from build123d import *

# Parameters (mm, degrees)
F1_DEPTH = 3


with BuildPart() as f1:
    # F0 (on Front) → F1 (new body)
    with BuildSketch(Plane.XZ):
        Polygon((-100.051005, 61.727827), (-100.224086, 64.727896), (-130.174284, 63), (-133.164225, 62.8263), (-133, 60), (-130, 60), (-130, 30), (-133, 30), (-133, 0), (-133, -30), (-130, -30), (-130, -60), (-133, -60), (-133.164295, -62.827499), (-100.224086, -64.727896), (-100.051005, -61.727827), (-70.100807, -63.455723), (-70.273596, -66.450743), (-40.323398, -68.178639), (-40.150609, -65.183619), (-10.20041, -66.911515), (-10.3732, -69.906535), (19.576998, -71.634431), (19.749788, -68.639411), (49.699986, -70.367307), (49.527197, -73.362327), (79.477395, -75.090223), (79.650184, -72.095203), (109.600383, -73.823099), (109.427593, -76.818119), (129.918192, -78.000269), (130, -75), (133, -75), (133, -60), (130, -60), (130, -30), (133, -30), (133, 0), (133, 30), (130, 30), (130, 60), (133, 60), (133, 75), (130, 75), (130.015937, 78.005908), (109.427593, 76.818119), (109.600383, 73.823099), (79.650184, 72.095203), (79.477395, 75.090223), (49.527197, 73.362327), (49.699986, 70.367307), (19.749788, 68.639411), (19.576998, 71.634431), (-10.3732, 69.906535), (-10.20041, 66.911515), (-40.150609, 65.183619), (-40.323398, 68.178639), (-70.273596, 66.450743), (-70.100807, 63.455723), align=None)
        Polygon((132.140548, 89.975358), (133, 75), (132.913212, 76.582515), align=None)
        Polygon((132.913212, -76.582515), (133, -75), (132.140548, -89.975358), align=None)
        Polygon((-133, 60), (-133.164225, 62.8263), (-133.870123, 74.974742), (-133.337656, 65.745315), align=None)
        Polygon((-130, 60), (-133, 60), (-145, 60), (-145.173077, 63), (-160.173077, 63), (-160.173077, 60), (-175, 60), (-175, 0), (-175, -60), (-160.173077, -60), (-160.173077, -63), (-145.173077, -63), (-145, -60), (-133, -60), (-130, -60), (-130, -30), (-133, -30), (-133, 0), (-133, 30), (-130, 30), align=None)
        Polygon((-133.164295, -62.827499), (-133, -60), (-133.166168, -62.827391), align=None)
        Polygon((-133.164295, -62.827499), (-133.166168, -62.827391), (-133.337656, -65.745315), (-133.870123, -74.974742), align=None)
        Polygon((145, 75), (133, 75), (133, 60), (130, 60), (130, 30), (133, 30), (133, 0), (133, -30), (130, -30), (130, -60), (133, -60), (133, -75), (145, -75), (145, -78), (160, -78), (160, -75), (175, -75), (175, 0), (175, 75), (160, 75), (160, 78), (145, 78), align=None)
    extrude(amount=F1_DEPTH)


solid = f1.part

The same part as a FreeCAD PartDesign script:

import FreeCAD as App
import Part
import Sketcher

V = App.Vector


def add_polygon(sketch, points):
    """Adds a closed chain of lines whose ends are joined by coincident constraints."""
    first, n = sketch.GeometryCount, len(points)
    for a, b in zip(points, points[1:] + points[:1]):
        sketch.addGeometry(Part.LineSegment(App.Vector(*a, 0), App.Vector(*b, 0)), False)
    for i in range(n):
        sketch.addConstraint(Sketcher.Constraint("Coincident", first + i, 2, first + (i + 1) % n, 1))

doc = App.newDocument("Part")
params = doc.addObject("Spreadsheet::Sheet", "Params")
for row, (alias, value) in enumerate([
    ("sketch1_width", "12 mm"),
    ("sketch1_width2", "15 mm"),
    ("sketch1_width3", "3 mm"),
    ("sketch1_height", "120 mm"),
    ("sketch1_height2", "150 mm"),
    ("pad1_length", "3 mm"),
], start=1):
    params.set(f"A{row}", alias)
    params.set(f"B{row}", "=" + value)
    params.setAlias(f"B{row}", alias)

body = doc.addObject("PartDesign::Body", "Body")
body.AllowCompound = True

# Sketch on XZ plane
sketch1 = body.newObject("Sketcher::SketchObject", "Sketch")
sketch1.AttachmentSupport = (doc.getObject("XZ_Plane"), [""])
sketch1.MapMode = "FlatFace"
add_polygon(sketch1, [(-100.051005, 61.727827), (-100.224086, 64.727896), (-130.174284, 63), (-133.164225, 62.8263), (-133.870123, 74.974742), (-133.337656, 65.745315), (-133, 60), (-145, 60), (-145.173077, 63), (-160.173077, 63), (-160.173077, 60), (-175, 60), (-175, -60), (-160.173077, -60), (-160.173077, -63), (-145.173077, -63), (-145, -60), (-133, -60), (-133.166168, -62.827391), (-133.337656, -65.745315), (-133.870123, -74.974742), (-133.164295, -62.827499), (-100.224086, -64.727896), (-100.051005, -61.727827), (-70.100807, -63.455723), (-70.273596, -66.450743), (-40.323398, -68.178639), (-40.150609, -65.183619), (-10.20041, -66.911515), (-10.3732, -69.906535), (19.576998, -71.634431), (19.749788, -68.639411), (49.699986, -70.367307), (49.527197, -73.362327), (79.477395, -75.090223), (79.650184, -72.095203), (109.600383, -73.823099), (109.427593, -76.818119), (129.918192, -78.000269), (130, -75), (133, -75), (145, -75), (145, -78), (160, -78), (160, -75), (175, -75), (175, 75), (160, 75), (160, 78), (145, 78), (145, 75), (133, 75), (130, 75), (130.015937, 78.005908), (109.427593, 76.818119), (109.600383, 73.823099), (79.650184, 72.095203), (79.477395, 75.090223), (49.527197, 73.362327), (49.699986, 70.367307), (19.749788, 68.639411), (19.576998, 71.634431), (-10.3732, 69.906535), (-10.20041, 66.911515), (-40.150609, 65.183619), (-40.323398, 68.178639), (-70.273596, 66.450743), (-70.100807, 63.455723)])  # lines 0-67
add_polygon(sketch1, [(132.140548, 89.975358), (133, 75), (132.913212, 76.582515)])  # lines 68-70
add_polygon(sketch1, [(132.913212, -76.582515), (133, -75), (132.140548, -89.975358)])  # lines 71-73
sketch1.addConstraint(Sketcher.Constraint("Horizontal", 6))
sketch1.addConstraint(Sketcher.Constraint("Horizontal", 8))
sketch1.addConstraint(Sketcher.Constraint("Vertical", 9))
sketch1.addConstraint(Sketcher.Constraint("Horizontal", 10))
sketch1.addConstraint(Sketcher.Constraint("Vertical", 11))
sketch1.addConstraint(Sketcher.Constraint("Horizontal", 12))
sketch1.addConstraint(Sketcher.Constraint("Vertical", 13))
sketch1.addConstraint(Sketcher.Constraint("Horizontal", 14))
sketch1.addConstraint(Sketcher.Constraint("Horizontal", 16))
sketch1.addConstraint(Sketcher.Constraint("Horizontal", 39))
sketch1.addConstraint(Sketcher.Constraint("Horizontal", 40))
sketch1.addConstraint(Sketcher.Constraint("Vertical", 41))
sketch1.addConstraint(Sketcher.Constraint("Horizontal", 42))
sketch1.addConstraint(Sketcher.Constraint("Vertical", 43))
sketch1.addConstraint(Sketcher.Constraint("Horizontal", 44))
sketch1.addConstraint(Sketcher.Constraint("Vertical", 45))
sketch1.addConstraint(Sketcher.Constraint("Horizontal", 46))
sketch1.addConstraint(Sketcher.Constraint("Vertical", 47))
sketch1.addConstraint(Sketcher.Constraint("Horizontal", 48))
sketch1.addConstraint(Sketcher.Constraint("Vertical", 49))
sketch1.addConstraint(Sketcher.Constraint("Horizontal", 50))
sketch1.addConstraint(Sketcher.Constraint("Horizontal", 51))
sketch1.addConstraint(Sketcher.Constraint("Coincident", 68, 2, 50, 2))
sketch1.addConstraint(Sketcher.Constraint("Coincident", 71, 2, 39, 2))
sketch1.addConstraint(Sketcher.Constraint("Symmetric", 9, 2, 12, 2, -1))
sketch1.addConstraint(Sketcher.Constraint("Symmetric", 7, 2, 14, 2, -1))
sketch1.addConstraint(Sketcher.Constraint("Symmetric", 6, 2, 15, 2, -1))
sketch1.addConstraint(Sketcher.Constraint("Symmetric", 4, 2, 18, 2, -1))
sketch1.addConstraint(Sketcher.Constraint("Symmetric", 3, 2, 19, 2, -1))
sketch1.addConstraint(Sketcher.Constraint("Symmetric", 0, 2, 21, 2, -1))
sketch1.addConstraint(Sketcher.Constraint("Symmetric", 43, 2, 46, 2, -1))
sketch1.addConstraint(Sketcher.Constraint("Symmetric", 41, 2, 48, 2, -1))
sketch1.addConstraint(Sketcher.Constraint("Symmetric", 39, 2, 50, 2, -1))
sketch1.addConstraint(Sketcher.Constraint("Symmetric", 36, 2, 53, 2, -1))
sketch1.addConstraint(Sketcher.Constraint("Symmetric", 35, 2, 54, 2, -1))
sketch1.addConstraint(Sketcher.Constraint("Symmetric", 34, 2, 55, 2, -1))
sketch1.addConstraint(Sketcher.Constraint("Symmetric", 33, 2, 56, 2, -1))
sketch1.addConstraint(Sketcher.Constraint("Symmetric", 32, 2, 57, 2, -1))
sketch1.addConstraint(Sketcher.Constraint("Symmetric", 31, 2, 58, 2, -1))
sketch1.addConstraint(Sketcher.Constraint("Symmetric", 30, 2, 59, 2, -1))
sketch1.addConstraint(Sketcher.Constraint("Symmetric", 29, 2, 60, 2, -1))
sketch1.addConstraint(Sketcher.Constraint("Symmetric", 28, 2, 61, 2, -1))
sketch1.addConstraint(Sketcher.Constraint("Symmetric", 27, 2, 62, 2, -1))
sketch1.addConstraint(Sketcher.Constraint("Symmetric", 26, 2, 63, 2, -1))
sketch1.addConstraint(Sketcher.Constraint("Symmetric", 25, 2, 64, 2, -1))
sketch1.addConstraint(Sketcher.Constraint("Symmetric", 24, 2, 65, 2, -1))
sketch1.addConstraint(Sketcher.Constraint("Symmetric", 23, 2, 66, 2, -1))
sketch1.addConstraint(Sketcher.Constraint("Symmetric", 22, 2, 67, 2, -1))
sketch1.addConstraint(Sketcher.Constraint("Symmetric", 70, 2, 72, 2, -1))
sketch1.addConstraint(Sketcher.Constraint("Symmetric", 69, 2, 73, 2, -1))
sketch1.addConstraint(Sketcher.Constraint("Perpendicular", 0, 1))
sketch1.addConstraint(Sketcher.Constraint("Perpendicular", 1, 4))
sketch1.addConstraint(Sketcher.Constraint("Parallel", 4, 7))
sketch1.addConstraint(Sketcher.Constraint("Parallel", 17, 18))
sketch1.addConstraint(Sketcher.Constraint("Perpendicular", 19, 21))
sketch1.addConstraint(Sketcher.Constraint("Perpendicular", 22, 23))
sketch1.addConstraint(Sketcher.Constraint("Perpendicular", 23, 24))
sketch1.addConstraint(Sketcher.Constraint("Perpendicular", 24, 25))
sketch1.addConstraint(Sketcher.Constraint("Perpendicular", 25, 26))
sketch1.addConstraint(Sketcher.Constraint("Perpendicular", 26, 27))
sketch1.addConstraint(Sketcher.Constraint("Perpendicular", 27, 28))
sketch1.addConstraint(Sketcher.Constraint("Perpendicular", 28, 29))
sketch1.addConstraint(Sketcher.Constraint("Perpendicular", 29, 30))
sketch1.addConstraint(Sketcher.Constraint("Perpendicular", 30, 31))
sketch1.addConstraint(Sketcher.Constraint("Perpendicular", 31, 32))
sketch1.addConstraint(Sketcher.Constraint("Perpendicular", 32, 33))
sketch1.addConstraint(Sketcher.Constraint("Perpendicular", 33, 34))
sketch1.addConstraint(Sketcher.Constraint("Perpendicular", 34, 35))
sketch1.addConstraint(Sketcher.Constraint("Perpendicular", 35, 36))
sketch1.addConstraint(Sketcher.Constraint("Perpendicular", 36, 37))
sketch1.addConstraint(Sketcher.Constraint("Perpendicular", 7, 53))
sketch1.addConstraint(Sketcher.Constraint("Perpendicular", 67, 70))
sketch1.addConstraint(Sketcher.Constraint("Horizontal", 1, 2, 7, 2))
sketch1.addConstraint(Sketcher.Constraint("Horizontal", 6, 2, 9, 2))
sketch1.addConstraint(Sketcher.Constraint("Horizontal", 40, 2, 43, 2))
sketch1.addConstraint(Sketcher.Constraint("Vertical", 5, 2, 16, 2))
sketch1.addConstraint(Sketcher.Constraint("Vertical", 38, 2, 51, 2))
sketch1.addConstraint(Sketcher.Constraint("Equal", 16, 40))
sketch1.addConstraint(Sketcher.Constraint("Equal", 14, 42))
sketch1.addConstraint(Sketcher.Constraint("Equal", 42, 44))
sketch1.addConstraint(Sketcher.Constraint("Equal", 51, 9))
sketch1.addConstraint(Sketcher.Constraint("Equal", 13, 41))
sketch1.addConstraint(Sketcher.Constraint("Equal", 1, 23))
sketch1.addConstraint(Sketcher.Constraint("Equal", 23, 25))
sketch1.addConstraint(Sketcher.Constraint("Equal", 24, 26))
sketch1.addConstraint(Sketcher.Constraint("Equal", 25, 27))
sketch1.addConstraint(Sketcher.Constraint("Equal", 26, 28))
sketch1.addConstraint(Sketcher.Constraint("Equal", 27, 29))
sketch1.addConstraint(Sketcher.Constraint("Equal", 28, 30))
sketch1.addConstraint(Sketcher.Constraint("Equal", 29, 31))
sketch1.addConstraint(Sketcher.Constraint("Equal", 30, 32))
sketch1.addConstraint(Sketcher.Constraint("Equal", 31, 33))
sketch1.addConstraint(Sketcher.Constraint("Equal", 32, 34))
sketch1.addConstraint(Sketcher.Constraint("Equal", 33, 35))
sketch1.addConstraint(Sketcher.Constraint("Equal", 34, 36))
sketch1.addConstraint(Sketcher.Constraint("DistanceX", 6, 2, 6, 1, 12.0))
sketch1.addConstraint(Sketcher.Constraint("DistanceX", 8, 2, 8, 1, 15.0))
sketch1.addConstraint(Sketcher.Constraint("DistanceX", 39, 1, 39, 2, 3.0))
sketch1.addConstraint(Sketcher.Constraint("DistanceY", 11, 2, 11, 1, 120.0))
sketch1.addConstraint(Sketcher.Constraint("DistanceY", 45, 1, 45, 2, 150.0))
sketch1.addConstraint(Sketcher.Constraint("Distance", 1, 30.0))
sketch1.addConstraint(Sketcher.Constraint("Distance", 24, 3.0))
sketch1.addConstraint(Sketcher.Constraint("Distance", 68, 15.0))
sketch1.addConstraint(Sketcher.Constraint("DistanceX", 5, 2, -1, 1, 133.0))
sketch1.addConstraint(Sketcher.Constraint("DistanceX", 10, 2, -1, 1, 175.0))
sketch1.addConstraint(Sketcher.Constraint("DistanceX", -1, 1, 38, 2, 130.0))
sketch1.addConstraint(Sketcher.Constraint("DistanceY", -1, 1, 2, 2, 62.8263))
sketch1.addConstraint(Sketcher.Constraint("DistanceY", 20, 2, -1, 1, 62.827499))
sketch1.addConstraint(Sketcher.Constraint("DistanceX", 28, 2, -1, 1, 10.3732))
sketch1.addConstraint(Sketcher.Constraint("DistanceY", 35, 2, -1, 1, 73.823099))
sketch1.addConstraint(Sketcher.Constraint("Distance", 5, 5.755229))
sketch1.addConstraint(Sketcher.Constraint("Distance", 17, 2.83227))
sketch1.addConstraint(Sketcher.Constraint("Distance", 37, 20.524671))
sketch1.addConstraint(Sketcher.Constraint("Distance", 52, 3.00595))
sketch1.addConstraint(Sketcher.Constraint("Distance", 53, 20.622579))
sketch1.addConstraint(Sketcher.Constraint("DistanceX", 17, 2, -1, 1, 133.166168))
sketch1.addConstraint(Sketcher.Constraint("DistanceX", -1, 1, 69, 2, 132.913212))
sketch1.addConstraint(Sketcher.Constraint("DistanceX", -1, 1, 70, 2, 132.140548))
sketch1.addConstraint(Sketcher.Constraint("Distance", 2, 2.994982))
sketch1.addConstraint(Sketcher.Constraint("Distance", 3, 12.168933))
sketch1.setExpression("Constraints[169]", "Params.sketch1_width")
sketch1.setExpression("Constraints[170]", "Params.sketch1_width2")
sketch1.setExpression("Constraints[171]", "Params.sketch1_width3")
sketch1.setExpression("Constraints[172]", "Params.sketch1_height")
sketch1.setExpression("Constraints[173]", "Params.sketch1_height2")
pad1 = body.newObject("PartDesign::Pad", "Pad")
pad1.Profile = sketch1
pad1.setExpression("Length", "Params.pad1_length")

doc.recompute()
